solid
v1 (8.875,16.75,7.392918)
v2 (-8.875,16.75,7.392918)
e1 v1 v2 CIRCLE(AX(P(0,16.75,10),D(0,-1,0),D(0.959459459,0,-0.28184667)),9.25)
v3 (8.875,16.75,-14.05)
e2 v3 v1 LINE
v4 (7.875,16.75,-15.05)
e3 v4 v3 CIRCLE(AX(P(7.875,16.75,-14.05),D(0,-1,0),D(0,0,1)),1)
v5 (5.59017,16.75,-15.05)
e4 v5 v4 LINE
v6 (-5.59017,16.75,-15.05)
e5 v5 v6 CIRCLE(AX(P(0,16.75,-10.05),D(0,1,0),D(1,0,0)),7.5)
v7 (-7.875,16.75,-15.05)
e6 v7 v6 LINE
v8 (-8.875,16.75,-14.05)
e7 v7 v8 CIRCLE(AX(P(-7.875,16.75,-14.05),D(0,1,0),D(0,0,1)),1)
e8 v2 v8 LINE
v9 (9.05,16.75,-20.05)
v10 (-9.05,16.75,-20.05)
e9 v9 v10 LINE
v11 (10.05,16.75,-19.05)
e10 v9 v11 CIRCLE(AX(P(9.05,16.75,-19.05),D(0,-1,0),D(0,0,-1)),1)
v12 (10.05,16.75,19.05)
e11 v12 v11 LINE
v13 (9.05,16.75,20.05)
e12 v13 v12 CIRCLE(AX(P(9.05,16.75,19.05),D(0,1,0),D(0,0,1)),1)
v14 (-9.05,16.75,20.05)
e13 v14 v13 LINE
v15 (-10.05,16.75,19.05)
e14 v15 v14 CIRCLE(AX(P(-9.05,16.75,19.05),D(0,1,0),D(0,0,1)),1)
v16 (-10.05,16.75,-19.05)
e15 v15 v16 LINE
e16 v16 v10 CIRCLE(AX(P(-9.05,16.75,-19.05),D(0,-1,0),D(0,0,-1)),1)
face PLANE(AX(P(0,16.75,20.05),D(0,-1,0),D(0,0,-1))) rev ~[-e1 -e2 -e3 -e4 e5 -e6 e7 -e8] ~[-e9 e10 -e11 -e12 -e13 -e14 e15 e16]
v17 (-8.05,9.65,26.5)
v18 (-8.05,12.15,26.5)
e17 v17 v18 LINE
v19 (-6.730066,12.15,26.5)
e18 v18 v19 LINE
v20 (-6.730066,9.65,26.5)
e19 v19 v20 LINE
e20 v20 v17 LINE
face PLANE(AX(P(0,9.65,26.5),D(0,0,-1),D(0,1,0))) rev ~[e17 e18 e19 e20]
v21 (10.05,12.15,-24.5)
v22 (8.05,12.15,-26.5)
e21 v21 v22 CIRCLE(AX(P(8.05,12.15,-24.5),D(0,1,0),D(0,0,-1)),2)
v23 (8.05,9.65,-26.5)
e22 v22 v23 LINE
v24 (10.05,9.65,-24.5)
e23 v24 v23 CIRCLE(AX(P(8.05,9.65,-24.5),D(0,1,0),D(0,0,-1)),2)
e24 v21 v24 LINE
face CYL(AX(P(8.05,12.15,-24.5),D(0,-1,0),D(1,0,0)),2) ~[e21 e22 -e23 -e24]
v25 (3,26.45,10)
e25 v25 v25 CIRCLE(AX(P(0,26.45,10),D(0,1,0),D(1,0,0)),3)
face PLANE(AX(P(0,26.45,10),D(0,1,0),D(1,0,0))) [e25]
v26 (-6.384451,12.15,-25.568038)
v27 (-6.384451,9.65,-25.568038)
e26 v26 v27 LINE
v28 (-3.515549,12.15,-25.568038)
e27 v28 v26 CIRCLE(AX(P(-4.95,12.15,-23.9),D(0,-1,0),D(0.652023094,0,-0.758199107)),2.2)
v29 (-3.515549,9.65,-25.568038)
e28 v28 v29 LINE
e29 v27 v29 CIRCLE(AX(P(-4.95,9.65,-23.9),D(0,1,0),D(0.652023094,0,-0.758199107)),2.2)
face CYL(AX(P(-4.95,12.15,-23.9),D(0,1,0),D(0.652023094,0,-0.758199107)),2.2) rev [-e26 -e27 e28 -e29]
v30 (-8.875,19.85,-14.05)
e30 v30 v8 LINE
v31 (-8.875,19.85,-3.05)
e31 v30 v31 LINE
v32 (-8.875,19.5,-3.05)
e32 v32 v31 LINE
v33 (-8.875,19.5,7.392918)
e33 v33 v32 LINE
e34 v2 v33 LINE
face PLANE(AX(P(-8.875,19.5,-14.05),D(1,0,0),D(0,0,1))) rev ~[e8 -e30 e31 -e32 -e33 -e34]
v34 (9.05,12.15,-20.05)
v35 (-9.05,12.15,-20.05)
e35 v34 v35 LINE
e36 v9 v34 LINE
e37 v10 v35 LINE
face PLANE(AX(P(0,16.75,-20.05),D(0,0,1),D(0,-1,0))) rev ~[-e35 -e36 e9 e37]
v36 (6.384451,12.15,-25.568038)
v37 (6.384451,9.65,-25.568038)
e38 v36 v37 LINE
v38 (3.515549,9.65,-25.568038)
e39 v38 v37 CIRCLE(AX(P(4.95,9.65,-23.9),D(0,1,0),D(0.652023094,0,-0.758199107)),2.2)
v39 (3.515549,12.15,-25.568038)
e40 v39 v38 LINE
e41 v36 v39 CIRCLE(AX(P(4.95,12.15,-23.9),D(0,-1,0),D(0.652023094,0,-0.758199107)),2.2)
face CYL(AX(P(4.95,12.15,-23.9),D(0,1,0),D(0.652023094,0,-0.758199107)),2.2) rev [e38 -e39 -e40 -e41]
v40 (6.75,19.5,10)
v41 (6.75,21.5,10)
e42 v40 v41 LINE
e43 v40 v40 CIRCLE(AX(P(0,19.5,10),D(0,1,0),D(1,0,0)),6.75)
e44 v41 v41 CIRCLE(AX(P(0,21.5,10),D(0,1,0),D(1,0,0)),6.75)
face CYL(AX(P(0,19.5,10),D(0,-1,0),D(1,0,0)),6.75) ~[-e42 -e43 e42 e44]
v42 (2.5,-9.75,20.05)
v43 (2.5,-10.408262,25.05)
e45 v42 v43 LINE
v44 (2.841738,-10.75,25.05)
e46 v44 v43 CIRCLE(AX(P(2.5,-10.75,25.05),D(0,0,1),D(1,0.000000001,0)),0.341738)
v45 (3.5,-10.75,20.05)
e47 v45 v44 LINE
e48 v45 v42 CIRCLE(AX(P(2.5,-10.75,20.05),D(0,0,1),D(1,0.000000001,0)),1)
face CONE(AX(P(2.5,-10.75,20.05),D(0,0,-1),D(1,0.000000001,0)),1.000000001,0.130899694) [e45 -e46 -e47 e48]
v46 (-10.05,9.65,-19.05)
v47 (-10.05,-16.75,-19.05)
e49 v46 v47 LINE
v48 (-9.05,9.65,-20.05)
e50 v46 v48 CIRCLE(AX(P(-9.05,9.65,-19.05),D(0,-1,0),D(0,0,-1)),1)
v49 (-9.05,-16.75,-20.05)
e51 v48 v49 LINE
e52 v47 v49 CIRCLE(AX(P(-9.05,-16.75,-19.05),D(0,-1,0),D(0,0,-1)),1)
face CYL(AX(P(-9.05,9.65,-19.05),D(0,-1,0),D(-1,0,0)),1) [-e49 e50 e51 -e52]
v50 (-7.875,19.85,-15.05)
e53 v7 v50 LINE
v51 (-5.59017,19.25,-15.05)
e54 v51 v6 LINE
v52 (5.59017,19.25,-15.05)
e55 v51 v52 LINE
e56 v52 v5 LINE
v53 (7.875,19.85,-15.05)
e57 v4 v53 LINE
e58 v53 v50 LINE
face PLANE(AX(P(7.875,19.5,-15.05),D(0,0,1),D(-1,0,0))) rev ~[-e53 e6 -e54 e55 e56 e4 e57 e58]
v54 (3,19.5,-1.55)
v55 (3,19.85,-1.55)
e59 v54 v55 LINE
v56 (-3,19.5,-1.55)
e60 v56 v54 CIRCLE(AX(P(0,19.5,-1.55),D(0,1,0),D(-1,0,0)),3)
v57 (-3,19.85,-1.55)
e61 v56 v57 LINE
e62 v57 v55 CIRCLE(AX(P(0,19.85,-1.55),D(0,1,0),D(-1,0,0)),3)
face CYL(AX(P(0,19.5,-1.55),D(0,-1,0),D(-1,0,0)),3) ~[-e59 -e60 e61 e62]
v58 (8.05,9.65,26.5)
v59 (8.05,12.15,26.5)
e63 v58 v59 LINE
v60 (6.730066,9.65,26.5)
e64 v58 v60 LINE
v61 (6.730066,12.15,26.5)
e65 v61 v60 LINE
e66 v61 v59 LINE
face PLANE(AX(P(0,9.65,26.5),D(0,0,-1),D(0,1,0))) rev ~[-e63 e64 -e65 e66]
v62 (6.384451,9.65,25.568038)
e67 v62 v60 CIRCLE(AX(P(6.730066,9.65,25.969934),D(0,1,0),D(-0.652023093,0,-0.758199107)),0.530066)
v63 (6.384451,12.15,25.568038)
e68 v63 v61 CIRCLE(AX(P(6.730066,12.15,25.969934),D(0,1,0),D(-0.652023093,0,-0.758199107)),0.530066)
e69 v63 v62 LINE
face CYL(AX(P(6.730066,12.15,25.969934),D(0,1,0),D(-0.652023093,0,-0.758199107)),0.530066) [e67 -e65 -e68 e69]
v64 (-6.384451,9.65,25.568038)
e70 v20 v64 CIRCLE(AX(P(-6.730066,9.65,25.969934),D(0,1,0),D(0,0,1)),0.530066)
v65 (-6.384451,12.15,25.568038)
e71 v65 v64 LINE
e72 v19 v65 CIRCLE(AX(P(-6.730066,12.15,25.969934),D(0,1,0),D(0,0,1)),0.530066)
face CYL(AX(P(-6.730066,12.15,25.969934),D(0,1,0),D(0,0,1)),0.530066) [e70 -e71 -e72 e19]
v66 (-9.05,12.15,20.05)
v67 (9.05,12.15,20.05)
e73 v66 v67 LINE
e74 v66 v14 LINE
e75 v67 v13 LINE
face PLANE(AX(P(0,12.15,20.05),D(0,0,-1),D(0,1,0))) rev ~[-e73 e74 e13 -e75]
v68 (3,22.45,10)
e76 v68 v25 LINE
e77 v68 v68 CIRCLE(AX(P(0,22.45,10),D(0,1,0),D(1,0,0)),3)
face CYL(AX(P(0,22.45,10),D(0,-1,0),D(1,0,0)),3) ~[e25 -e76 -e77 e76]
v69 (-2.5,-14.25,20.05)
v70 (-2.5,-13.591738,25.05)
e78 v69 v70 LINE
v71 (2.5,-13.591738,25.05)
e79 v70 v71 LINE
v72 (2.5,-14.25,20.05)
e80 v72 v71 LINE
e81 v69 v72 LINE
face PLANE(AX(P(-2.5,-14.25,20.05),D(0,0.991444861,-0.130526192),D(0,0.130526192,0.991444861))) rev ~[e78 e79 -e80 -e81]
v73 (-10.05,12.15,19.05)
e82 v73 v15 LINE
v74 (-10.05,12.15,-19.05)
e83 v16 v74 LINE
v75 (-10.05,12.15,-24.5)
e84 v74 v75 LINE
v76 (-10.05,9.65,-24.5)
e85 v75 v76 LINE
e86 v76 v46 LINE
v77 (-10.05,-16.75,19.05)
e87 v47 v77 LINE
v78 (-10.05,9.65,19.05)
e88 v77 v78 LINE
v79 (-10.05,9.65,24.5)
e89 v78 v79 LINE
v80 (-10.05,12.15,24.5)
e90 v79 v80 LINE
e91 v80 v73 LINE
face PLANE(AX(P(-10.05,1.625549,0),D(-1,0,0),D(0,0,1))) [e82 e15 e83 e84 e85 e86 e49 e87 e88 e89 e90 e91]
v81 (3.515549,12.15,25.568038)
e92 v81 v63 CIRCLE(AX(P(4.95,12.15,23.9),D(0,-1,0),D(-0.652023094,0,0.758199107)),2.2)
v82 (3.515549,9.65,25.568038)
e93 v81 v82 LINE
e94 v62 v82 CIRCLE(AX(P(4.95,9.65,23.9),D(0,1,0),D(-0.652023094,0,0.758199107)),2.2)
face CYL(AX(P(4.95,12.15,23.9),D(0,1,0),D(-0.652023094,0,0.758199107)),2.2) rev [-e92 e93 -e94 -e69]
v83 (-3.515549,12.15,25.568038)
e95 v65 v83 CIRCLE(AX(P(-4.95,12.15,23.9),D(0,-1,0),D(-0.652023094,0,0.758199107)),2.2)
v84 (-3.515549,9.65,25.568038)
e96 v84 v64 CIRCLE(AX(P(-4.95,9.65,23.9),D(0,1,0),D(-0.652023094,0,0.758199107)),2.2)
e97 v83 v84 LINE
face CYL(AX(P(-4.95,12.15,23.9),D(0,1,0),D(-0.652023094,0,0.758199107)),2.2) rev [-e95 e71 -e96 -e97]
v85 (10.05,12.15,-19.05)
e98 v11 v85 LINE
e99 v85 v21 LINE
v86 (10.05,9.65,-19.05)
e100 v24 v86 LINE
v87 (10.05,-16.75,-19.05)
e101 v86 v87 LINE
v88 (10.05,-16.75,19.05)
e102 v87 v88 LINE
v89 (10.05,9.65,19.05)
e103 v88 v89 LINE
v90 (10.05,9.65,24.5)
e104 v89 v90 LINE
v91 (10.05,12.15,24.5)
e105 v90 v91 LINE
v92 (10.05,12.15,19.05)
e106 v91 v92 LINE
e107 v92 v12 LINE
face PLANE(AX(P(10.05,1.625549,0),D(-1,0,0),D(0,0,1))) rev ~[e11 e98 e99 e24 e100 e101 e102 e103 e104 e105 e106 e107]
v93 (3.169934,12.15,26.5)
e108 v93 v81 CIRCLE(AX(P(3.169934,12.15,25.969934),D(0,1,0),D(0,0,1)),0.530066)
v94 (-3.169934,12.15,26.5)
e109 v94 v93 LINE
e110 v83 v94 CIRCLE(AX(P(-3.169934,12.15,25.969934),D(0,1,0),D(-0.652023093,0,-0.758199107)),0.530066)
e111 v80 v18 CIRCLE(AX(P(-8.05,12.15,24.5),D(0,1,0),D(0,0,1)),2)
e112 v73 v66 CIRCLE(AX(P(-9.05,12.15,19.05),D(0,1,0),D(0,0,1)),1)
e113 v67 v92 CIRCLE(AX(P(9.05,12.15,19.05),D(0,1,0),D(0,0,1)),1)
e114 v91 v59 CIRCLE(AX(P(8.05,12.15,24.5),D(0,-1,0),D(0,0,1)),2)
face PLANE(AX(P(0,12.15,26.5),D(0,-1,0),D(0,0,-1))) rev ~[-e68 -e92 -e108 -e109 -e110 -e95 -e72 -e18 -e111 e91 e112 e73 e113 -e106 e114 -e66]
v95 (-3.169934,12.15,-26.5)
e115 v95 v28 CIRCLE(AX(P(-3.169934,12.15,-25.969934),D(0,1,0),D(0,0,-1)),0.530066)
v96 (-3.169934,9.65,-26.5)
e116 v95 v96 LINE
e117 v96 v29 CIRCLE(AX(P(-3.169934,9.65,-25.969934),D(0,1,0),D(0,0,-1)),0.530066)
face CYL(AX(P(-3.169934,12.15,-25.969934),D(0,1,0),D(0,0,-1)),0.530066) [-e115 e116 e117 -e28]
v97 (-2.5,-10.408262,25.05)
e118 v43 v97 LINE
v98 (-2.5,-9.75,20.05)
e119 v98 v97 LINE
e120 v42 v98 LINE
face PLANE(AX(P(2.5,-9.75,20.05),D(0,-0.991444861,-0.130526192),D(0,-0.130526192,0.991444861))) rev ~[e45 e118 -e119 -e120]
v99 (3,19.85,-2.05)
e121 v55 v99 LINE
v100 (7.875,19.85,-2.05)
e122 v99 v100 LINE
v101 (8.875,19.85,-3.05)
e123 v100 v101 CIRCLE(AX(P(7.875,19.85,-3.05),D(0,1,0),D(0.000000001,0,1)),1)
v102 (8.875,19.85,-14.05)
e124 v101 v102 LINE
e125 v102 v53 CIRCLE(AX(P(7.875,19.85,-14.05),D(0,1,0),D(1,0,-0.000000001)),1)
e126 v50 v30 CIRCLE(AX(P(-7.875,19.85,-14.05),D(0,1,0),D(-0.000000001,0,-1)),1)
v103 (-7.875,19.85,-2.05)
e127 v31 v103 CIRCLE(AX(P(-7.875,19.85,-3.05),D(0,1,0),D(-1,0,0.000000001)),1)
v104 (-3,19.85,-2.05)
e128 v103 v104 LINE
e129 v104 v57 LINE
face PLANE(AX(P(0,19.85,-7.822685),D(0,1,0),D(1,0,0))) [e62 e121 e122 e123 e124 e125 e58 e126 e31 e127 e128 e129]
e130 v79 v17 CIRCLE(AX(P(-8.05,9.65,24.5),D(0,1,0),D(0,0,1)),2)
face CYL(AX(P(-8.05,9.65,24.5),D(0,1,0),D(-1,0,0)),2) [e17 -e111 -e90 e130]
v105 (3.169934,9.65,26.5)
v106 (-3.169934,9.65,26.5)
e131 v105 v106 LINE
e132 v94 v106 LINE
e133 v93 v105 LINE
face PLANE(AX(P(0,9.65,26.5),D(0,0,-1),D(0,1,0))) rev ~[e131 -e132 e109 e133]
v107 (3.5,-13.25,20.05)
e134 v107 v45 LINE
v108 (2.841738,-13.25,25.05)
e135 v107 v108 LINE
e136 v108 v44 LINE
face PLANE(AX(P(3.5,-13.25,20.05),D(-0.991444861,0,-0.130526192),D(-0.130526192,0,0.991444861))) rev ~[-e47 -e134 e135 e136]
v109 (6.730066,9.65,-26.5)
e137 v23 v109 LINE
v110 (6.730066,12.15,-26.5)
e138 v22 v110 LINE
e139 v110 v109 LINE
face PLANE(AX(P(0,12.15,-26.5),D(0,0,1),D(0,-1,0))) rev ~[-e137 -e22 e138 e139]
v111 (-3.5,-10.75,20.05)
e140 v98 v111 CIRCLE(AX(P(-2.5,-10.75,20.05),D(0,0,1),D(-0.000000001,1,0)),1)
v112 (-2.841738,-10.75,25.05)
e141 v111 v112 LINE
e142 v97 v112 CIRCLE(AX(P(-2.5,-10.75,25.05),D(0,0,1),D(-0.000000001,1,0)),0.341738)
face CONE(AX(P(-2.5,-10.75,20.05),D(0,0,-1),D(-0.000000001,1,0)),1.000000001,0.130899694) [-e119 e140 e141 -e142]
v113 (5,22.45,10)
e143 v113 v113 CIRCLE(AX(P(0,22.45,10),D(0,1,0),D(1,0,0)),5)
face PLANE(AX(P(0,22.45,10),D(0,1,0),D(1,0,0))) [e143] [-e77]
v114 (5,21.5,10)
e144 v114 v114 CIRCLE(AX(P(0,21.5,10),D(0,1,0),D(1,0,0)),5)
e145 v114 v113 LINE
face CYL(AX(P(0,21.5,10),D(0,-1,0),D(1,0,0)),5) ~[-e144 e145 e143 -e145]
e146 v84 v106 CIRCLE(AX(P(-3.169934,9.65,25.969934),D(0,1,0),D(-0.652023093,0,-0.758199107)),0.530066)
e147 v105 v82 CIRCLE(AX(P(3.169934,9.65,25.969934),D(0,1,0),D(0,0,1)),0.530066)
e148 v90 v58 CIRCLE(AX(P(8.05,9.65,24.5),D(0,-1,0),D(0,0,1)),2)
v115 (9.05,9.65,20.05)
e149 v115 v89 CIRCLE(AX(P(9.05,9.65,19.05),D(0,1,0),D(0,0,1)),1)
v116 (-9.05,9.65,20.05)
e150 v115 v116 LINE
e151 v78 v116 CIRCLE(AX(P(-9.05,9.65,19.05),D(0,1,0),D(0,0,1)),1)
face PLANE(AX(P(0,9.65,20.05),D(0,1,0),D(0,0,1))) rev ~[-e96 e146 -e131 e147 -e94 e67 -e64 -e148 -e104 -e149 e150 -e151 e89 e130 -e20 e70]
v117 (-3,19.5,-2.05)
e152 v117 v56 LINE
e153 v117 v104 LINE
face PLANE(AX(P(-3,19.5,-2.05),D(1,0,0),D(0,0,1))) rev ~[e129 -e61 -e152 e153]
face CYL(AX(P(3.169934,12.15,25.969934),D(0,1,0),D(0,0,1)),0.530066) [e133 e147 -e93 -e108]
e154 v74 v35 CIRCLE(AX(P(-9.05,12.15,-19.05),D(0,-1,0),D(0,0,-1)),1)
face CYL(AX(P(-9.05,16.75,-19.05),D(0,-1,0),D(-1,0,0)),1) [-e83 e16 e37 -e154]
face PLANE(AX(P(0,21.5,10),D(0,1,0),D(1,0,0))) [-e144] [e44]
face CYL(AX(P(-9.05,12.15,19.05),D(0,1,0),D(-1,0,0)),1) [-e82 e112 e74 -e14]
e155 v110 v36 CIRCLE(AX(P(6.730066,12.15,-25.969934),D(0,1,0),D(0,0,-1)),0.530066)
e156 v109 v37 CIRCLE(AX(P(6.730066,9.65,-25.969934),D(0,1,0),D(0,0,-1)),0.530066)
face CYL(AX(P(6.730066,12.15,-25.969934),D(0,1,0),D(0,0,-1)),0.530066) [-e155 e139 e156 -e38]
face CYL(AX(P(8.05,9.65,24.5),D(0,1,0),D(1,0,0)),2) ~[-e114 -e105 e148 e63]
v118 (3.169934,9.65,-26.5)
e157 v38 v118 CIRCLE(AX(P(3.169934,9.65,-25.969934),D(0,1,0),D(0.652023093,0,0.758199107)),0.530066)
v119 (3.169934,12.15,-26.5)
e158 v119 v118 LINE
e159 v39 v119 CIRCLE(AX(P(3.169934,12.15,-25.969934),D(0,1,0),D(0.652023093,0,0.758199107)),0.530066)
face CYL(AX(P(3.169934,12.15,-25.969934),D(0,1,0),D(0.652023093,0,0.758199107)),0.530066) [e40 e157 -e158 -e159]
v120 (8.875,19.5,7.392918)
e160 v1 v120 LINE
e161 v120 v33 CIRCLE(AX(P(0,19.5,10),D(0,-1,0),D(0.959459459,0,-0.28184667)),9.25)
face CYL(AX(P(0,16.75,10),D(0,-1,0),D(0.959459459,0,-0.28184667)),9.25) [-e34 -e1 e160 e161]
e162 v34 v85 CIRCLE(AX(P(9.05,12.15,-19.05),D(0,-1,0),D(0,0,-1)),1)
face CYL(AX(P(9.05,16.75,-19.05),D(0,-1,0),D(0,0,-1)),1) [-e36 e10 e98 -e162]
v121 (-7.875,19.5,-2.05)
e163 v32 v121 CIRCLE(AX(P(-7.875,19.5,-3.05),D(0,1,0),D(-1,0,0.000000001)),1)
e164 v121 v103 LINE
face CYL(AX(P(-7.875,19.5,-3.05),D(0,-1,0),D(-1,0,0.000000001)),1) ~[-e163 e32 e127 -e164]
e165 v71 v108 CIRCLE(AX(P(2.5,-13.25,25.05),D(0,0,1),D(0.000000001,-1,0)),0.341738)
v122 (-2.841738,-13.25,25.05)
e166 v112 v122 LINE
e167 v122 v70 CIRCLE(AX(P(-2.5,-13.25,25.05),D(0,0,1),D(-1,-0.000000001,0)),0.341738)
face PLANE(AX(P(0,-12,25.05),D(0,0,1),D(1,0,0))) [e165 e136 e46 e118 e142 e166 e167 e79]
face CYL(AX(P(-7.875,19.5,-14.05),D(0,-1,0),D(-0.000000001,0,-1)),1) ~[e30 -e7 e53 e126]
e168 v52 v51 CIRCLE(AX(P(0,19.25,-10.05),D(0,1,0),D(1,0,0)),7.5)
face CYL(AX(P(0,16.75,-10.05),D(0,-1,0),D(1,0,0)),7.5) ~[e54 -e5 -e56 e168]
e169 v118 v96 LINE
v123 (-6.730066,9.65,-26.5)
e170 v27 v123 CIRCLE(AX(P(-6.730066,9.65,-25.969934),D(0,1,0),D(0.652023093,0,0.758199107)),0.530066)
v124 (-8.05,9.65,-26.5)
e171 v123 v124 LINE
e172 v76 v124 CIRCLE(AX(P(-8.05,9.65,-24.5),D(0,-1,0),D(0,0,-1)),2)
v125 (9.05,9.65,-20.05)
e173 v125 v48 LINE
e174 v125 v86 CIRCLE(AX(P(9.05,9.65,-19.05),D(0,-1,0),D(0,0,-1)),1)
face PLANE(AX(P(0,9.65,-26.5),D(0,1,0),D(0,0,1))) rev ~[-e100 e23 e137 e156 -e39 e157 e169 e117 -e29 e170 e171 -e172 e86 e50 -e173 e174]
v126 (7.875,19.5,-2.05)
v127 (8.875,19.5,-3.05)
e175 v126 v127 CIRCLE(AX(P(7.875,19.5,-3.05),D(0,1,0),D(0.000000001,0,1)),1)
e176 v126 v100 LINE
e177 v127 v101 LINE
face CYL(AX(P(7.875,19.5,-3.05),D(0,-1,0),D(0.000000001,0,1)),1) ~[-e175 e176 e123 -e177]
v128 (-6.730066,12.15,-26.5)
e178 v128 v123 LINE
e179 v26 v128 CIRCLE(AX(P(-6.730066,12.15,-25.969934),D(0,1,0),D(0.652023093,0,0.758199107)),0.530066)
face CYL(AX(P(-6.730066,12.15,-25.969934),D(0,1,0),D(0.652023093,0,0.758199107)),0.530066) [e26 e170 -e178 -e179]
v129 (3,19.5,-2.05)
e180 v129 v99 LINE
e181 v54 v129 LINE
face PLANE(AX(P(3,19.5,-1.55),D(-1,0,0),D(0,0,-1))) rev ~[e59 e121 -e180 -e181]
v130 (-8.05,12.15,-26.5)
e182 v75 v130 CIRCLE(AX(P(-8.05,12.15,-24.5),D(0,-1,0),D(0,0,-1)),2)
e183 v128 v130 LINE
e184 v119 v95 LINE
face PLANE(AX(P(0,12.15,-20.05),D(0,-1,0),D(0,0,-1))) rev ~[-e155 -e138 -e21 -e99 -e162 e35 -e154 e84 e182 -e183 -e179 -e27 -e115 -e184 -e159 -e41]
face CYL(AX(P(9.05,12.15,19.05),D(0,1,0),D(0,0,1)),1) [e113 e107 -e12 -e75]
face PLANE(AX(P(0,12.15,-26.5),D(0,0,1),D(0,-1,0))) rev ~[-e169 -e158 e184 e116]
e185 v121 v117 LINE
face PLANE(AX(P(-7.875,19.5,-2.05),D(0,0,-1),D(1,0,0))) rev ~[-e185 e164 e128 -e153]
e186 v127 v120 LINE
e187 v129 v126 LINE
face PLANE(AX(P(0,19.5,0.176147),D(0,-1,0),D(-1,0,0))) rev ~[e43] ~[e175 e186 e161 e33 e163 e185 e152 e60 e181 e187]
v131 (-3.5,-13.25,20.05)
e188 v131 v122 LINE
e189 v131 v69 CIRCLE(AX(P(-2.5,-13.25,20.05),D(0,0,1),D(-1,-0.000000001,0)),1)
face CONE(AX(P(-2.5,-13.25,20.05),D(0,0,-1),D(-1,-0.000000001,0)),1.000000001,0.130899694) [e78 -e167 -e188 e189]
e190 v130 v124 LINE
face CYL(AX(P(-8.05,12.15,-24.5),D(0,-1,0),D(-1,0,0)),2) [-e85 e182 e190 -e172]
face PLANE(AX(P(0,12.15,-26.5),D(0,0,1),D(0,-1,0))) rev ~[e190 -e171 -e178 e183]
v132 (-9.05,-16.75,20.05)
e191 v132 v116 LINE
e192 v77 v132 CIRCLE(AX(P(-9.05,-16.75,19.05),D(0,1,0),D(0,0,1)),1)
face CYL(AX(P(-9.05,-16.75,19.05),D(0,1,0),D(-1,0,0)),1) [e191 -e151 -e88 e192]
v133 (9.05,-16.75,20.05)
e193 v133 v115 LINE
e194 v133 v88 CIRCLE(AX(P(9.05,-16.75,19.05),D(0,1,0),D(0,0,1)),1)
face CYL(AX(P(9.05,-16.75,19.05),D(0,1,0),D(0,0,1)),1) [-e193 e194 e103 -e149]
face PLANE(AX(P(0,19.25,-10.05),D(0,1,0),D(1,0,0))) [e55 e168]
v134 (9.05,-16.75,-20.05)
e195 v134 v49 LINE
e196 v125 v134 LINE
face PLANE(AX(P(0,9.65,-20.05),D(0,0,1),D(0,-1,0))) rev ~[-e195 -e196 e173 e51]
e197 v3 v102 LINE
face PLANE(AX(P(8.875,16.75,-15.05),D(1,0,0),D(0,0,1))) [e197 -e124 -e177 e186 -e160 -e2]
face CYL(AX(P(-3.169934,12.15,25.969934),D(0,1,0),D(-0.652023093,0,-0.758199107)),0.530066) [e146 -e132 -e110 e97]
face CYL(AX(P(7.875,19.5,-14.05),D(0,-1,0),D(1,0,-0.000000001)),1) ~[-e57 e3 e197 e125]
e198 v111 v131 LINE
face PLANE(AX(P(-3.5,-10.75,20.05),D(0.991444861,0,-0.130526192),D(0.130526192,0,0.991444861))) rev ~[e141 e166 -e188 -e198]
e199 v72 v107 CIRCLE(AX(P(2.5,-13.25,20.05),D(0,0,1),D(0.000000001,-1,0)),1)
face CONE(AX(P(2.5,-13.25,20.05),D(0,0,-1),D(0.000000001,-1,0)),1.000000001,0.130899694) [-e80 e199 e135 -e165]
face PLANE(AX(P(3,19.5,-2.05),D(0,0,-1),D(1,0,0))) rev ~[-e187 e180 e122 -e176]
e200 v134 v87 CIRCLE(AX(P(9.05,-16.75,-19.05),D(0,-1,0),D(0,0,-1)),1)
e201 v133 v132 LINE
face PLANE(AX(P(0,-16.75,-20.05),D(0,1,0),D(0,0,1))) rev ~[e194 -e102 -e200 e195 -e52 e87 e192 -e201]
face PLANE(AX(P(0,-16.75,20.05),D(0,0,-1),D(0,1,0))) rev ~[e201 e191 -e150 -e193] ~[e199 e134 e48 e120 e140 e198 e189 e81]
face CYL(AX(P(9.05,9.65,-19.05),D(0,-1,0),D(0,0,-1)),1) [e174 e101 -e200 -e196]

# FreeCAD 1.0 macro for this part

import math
import FreeCAD as App
import Part
import Sketcher
from FreeCAD import Vector


def edges_at(feature, points):
    """Names of the edges that pass closest to the given points."""
    edges = feature.Shape.Edges
    near = lambda p: min(range(len(edges)), key=lambda i: edges[i].distToShape(Part.Vertex(*p))[0])
    return sorted({f"Edge{near(p) + 1}" for p in points})

doc = App.newDocument("Part")
body = doc.addObject("PartDesign::Body", "Body")

sketch1 = body.newObject("Sketcher::SketchObject", "Sketch")
sketch1.AttachmentSupport = (doc.getObject("YZ_Plane"), [""])
sketch1.MapMode = "FlatFace"
sketch1.addGeometry(Part.LineSegment(Vector(16.8, -20.1, 0), Vector(16.8, 20.1, 0)), False)
sketch1.addGeometry(Part.LineSegment(Vector(16.8, 20.1, 0), Vector(12.2, 20.1, 0)), False)
sketch1.addGeometry(Part.LineSegment(Vector(12.2, 20.1, 0), Vector(12.2, 26.5, 0)), False)
sketch1.addGeometry(Part.LineSegment(Vector(12.2, 26.5, 0), Vector(9.7, 26.5, 0)), False)
sketch1.addGeometry(Part.LineSegment(Vector(9.7, 26.5, 0), Vector(9.7, 20.1, 0)), False)
sketch1.addGeometry(Part.LineSegment(Vector(9.7, 20.1, 0), Vector(-16.8, 20.1, 0)), False)
sketch1.addGeometry(Part.LineSegment(Vector(-16.8, 20.1, 0), Vector(-16.8, -20.1, 0)), False)
sketch1.addGeometry(Part.LineSegment(Vector(-16.8, -20.1, 0), Vector(9.7, -20.1, 0)), False)
sketch1.addGeometry(Part.LineSegment(Vector(9.7, -20.1, 0), Vector(9.7, -26.5, 0)), False)
sketch1.addGeometry(Part.LineSegment(Vector(9.7, -26.5, 0), Vector(12.2, -26.5, 0)), False)
sketch1.addGeometry(Part.LineSegment(Vector(12.2, -26.5, 0), Vector(12.2, -20.1, 0)), False)
sketch1.addGeometry(Part.LineSegment(Vector(12.2, -20.1, 0), Vector(16.8, -20.1, 0)), False)
sketch1.addConstraint(Sketcher.Constraint("Coincident", 0, 2, 1, 1))
sketch1.addConstraint(Sketcher.Constraint("Coincident", 1, 2, 2, 1))
sketch1.addConstraint(Sketcher.Constraint("Coincident", 2, 2, 3, 1))
sketch1.addConstraint(Sketcher.Constraint("Coincident", 3, 2, 4, 1))
sketch1.addConstraint(Sketcher.Constraint("Coincident", 4, 2, 5, 1))
sketch1.addConstraint(Sketcher.Constraint("Coincident", 5, 2, 6, 1))
sketch1.addConstraint(Sketcher.Constraint("Coincident", 6, 2, 7, 1))
sketch1.addConstraint(Sketcher.Constraint("Coincident", 7, 2, 8, 1))
sketch1.addConstraint(Sketcher.Constraint("Coincident", 8, 2, 9, 1))
sketch1.addConstraint(Sketcher.Constraint("Coincident", 9, 2, 10, 1))
sketch1.addConstraint(Sketcher.Constraint("Coincident", 10, 2, 11, 1))
sketch1.addConstraint(Sketcher.Constraint("Coincident", 11, 2, 0, 1))
sketch1.addConstraint(Sketcher.Constraint("Vertical", 0))
sketch1.addConstraint(Sketcher.Constraint("Horizontal", 1))
sketch1.addConstraint(Sketcher.Constraint("Vertical", 2))
sketch1.addConstraint(Sketcher.Constraint("Horizontal", 3))
sketch1.addConstraint(Sketcher.Constraint("Vertical", 4))
sketch1.addConstraint(Sketcher.Constraint("Horizontal", 5))
sketch1.addConstraint(Sketcher.Constraint("Vertical", 6))
sketch1.addConstraint(Sketcher.Constraint("Horizontal", 7))
sketch1.addConstraint(Sketcher.Constraint("Vertical", 8))
sketch1.addConstraint(Sketcher.Constraint("Horizontal", 9))
sketch1.addConstraint(Sketcher.Constraint("Vertical", 10))
sketch1.addConstraint(Sketcher.Constraint("Horizontal", 11))
sketch1.addConstraint(Sketcher.Constraint("Symmetric", 0, 2, 6, 2, -1, 1))
sketch1.addConstraint(Sketcher.Constraint("Symmetric", 4, 2, 7, 2, -1))
sketch1.addConstraint(Sketcher.Constraint("Symmetric", 2, 2, 9, 2, -1))
sketch1.addConstraint(Sketcher.Constraint("Horizontal", 7, 2, 10, 2))
sketch1.addConstraint(Sketcher.Constraint("DistanceX", 1, 2, 1, 1, 4.6))
sketch1.addConstraint(Sketcher.Constraint("DistanceX", 3, 2, 3, 1, 2.5))
sketch1.addConstraint(Sketcher.Constraint("DistanceX", 5, 2, 5, 1, 26.4))
sketch1.addConstraint(Sketcher.Constraint("DistanceY", 0, 1, 0, 2, 40.1))
sketch1.addConstraint(Sketcher.Constraint("DistanceY", 2, 1, 2, 2, 6.45))
pad1 = body.newObject("PartDesign::Pad", "Pad")
pad1.Profile = sketch1
pad1.Length = 20.1
pad1.Midplane = True

sketch2 = body.newObject("Sketcher::SketchObject", "Sketch001")
sketch2.AttachmentSupport = (doc.getObject("XZ_Plane"), [""])
sketch2.MapMode = "FlatFace"
sketch2.AttachmentOffset = App.Placement(Vector(0, 0, -16.75), App.Rotation())
sketch2.addGeometry(Part.LineSegment(Vector(9, -15, 0), Vector(-9, -15, 0)), False)
sketch2.addGeometry(Part.LineSegment(Vector(-9, -15, 0), Vector(-9, 7, 0)), False)
sketch2.addGeometry(Part.ArcOfCircle(Part.Circle(Vector(0, 10, 0), Vector(0, 0, 1), 9), math.radians(-16), math.radians(196)), False)
sketch2.addGeometry(Part.LineSegment(Vector(9, 7, 0), Vector(9, -15, 0)), False)
sketch2.addConstraint(Sketcher.Constraint("Coincident", 0, 2, 1, 1))
sketch2.addConstraint(Sketcher.Constraint("Coincident", 1, 2, 2, 2))
sketch2.addConstraint(Sketcher.Constraint("Coincident", 2, 1, 3, 1))
sketch2.addConstraint(Sketcher.Constraint("Coincident", 3, 2, 0, 1))
sketch2.addConstraint(Sketcher.Constraint("Horizontal", 0))
sketch2.addConstraint(Sketcher.Constraint("Vertical", 1))
sketch2.addConstraint(Sketcher.Constraint("Vertical", 3))
sketch2.addConstraint(Sketcher.Constraint("Symmetric", 1, 2, 2, 1, -2))
sketch2.addConstraint(Sketcher.Constraint("Radius", 2, 9.25))
sketch2.addConstraint(Sketcher.Constraint("DistanceY", -1, 1, 2, 3, 10.0))
sketch2.addConstraint(Sketcher.Constraint("DistanceX", 0, 2, 0, 1, 17.75))
sketch2.addConstraint(Sketcher.Constraint("DistanceY", 0, 2, -1, 1, 15.05))
pad2 = body.newObject("PartDesign::Pad", "Pad001")
pad2.Profile = sketch2
pad2.Length = 2.75
pad2.Reversed = True

sketch3 = body.newObject("Sketcher::SketchObject", "Sketch002")
sketch3.AttachmentSupport = (doc.getObject("XZ_Plane"), [""])
sketch3.MapMode = "FlatFace"
sketch3.AttachmentOffset = App.Placement(Vector(0, 0, -16.75), App.Rotation())
sketch3.addGeometry(Part.Circle(Vector(0, -10, 0), Vector(0, 0, 1), 8), False)
sketch3.addConstraint(Sketcher.Constraint("PointOnObject", 0, 3, -2))
sketch3.addConstraint(Sketcher.Constraint("Diameter", 0, 15.0))
sketch3.addConstraint(Sketcher.Constraint("DistanceY", 0, 3, -1, 1, 10.05))
pad3 = body.newObject("PartDesign::Pad", "Pad002")
pad3.Profile = sketch3
pad3.Length = 2.5
pad3.Reversed = True

sketch4 = body.newObject("Sketcher::SketchObject", "Sketch003")
sketch4.AttachmentSupport = (doc.getObject("XZ_Plane"), [""])
sketch4.MapMode = "FlatFace"
sketch4.AttachmentOffset = App.Placement(Vector(0, 0, -19.5), App.Rotation())
sketch4.addGeometry(Part.Circle(Vector(0, 10, 0), Vector(0, 0, 1), 7), False)
sketch4.addConstraint(Sketcher.Constraint("PointOnObject", 0, 3, -2))
sketch4.addConstraint(Sketcher.Constraint("Diameter", 0, 13.5))
sketch4.addConstraint(Sketcher.Constraint("DistanceY", -1, 1, 0, 3, 10.0))
pad4 = body.newObject("PartDesign::Pad", "Pad003")
pad4.Profile = sketch4
pad4.Length = 2
pad4.Reversed = True

sketch5 = body.newObject("Sketcher::SketchObject", "Sketch004")
sketch5.AttachmentSupport = (doc.getObject("XZ_Plane"), [""])
sketch5.MapMode = "FlatFace"
sketch5.AttachmentOffset = App.Placement(Vector(0, 0, -21.5), App.Rotation())
sketch5.addGeometry(Part.Circle(Vector(0, 10, 0), Vector(0, 0, 1), 5), False)
sketch5.addConstraint(Sketcher.Constraint("PointOnObject", 0, 3, -2))
sketch5.addConstraint(Sketcher.Constraint("Diameter", 0, 10.0))
sketch5.addConstraint(Sketcher.Constraint("DistanceY", -1, 1, 0, 3, 10.0))
pad5 = body.newObject("PartDesign::Pad", "Pad004")
pad5.Profile = sketch5
pad5.Length = 0.95
pad5.Reversed = True

sketch6 = body.newObject("Sketcher::SketchObject", "Sketch005")
sketch6.AttachmentSupport = (doc.getObject("XZ_Plane"), [""])
sketch6.MapMode = "FlatFace"
sketch6.AttachmentOffset = App.Placement(Vector(0, 0, -22.45), App.Rotation())
sketch6.addGeometry(Part.Circle(Vector(0, 10, 0), Vector(0, 0, 1), 3), False)
sketch6.addConstraint(Sketcher.Constraint("PointOnObject", 0, 3, -2))
sketch6.addConstraint(Sketcher.Constraint("Diameter", 0, 6.0))
sketch6.addConstraint(Sketcher.Constraint("DistanceY", -1, 1, 0, 3, 10.0))
pad6 = body.newObject("PartDesign::Pad", "Pad005")
pad6.Profile = sketch6
pad6.Length = 4
pad6.Reversed = True
doc.recompute()

fillet = body.newObject("PartDesign::Fillet", "Fillet")
fillet.Base = (pad6, edges_at(pad6, [(-8.875, 18.125, -15.05), (8.875, 18.125, -15.05)]))
fillet.Radius = 1

sketch7 = body.newObject("Sketcher::SketchObject", "Sketch006")
sketch7.AttachmentSupport = (doc.getObject("XZ_Plane"), [""])
sketch7.MapMode = "FlatFace"
sketch7.AttachmentOffset = App.Placement(Vector(0, 0, -19.5), App.Rotation())
sketch7.addGeometry(Part.LineSegment(Vector(-7.88, -2.05, 0), Vector(-3, -2.05, 0)), False)
sketch7.addGeometry(Part.LineSegment(Vector(-3, -2.05, 0), Vector(-3, -1.55, 0)), False)
sketch7.addGeometry(Part.ArcOfCircle(Part.Circle(Vector(0, -1.55, 0), Vector(0, 0, 1), 3), math.radians(0), math.radians(180)), False)
sketch7.addGeometry(Part.LineSegment(Vector(3, -1.55, 0), Vector(3, -2.05, 0)), False)
sketch7.addGeometry(Part.LineSegment(Vector(3, -2.05, 0), Vector(7.88, -2.05, 0)), False)
sketch7.addGeometry(Part.ArcOfCircle(Part.Circle(Vector(7.87, -3.05, 0), Vector(0, 0, 1), 1), math.radians(0), math.radians(90)), False)
sketch7.addGeometry(Part.LineSegment(Vector(8.88, -3.05, 0), Vector(8.88, -14.05, 0)), False)
sketch7.addGeometry(Part.ArcOfCircle(Part.Circle(Vector(7.87, -14.05, 0), Vector(0, 0, 1), 1), math.radians(-90), math.radians(0)), False)
sketch7.addGeometry(Part.LineSegment(Vector(7.88, -15.05, 0), Vector(-7.88, -15.05, 0)), False)
sketch7.addGeometry(Part.ArcOfCircle(Part.Circle(Vector(-7.87, -14.05, 0), Vector(0, 0, 1), 1), math.radians(-180), math.radians(-90)), False)
sketch7.addGeometry(Part.LineSegment(Vector(-8.88, -14.05, 0), Vector(-8.88, -3.05, 0)), False)
sketch7.addGeometry(Part.ArcOfCircle(Part.Circle(Vector(-7.87, -3.05, 0), Vector(0, 0, 1), 1), math.radians(90), math.radians(180)), False)
sketch7.addConstraint(Sketcher.Constraint("Coincident", 0, 2, 1, 1))
sketch7.addConstraint(Sketcher.Constraint("Tangent", 1, 2, 2, 2))
sketch7.addConstraint(Sketcher.Constraint("Tangent", 2, 1, 3, 1))
sketch7.addConstraint(Sketcher.Constraint("Coincident", 3, 2, 4, 1))
sketch7.addConstraint(Sketcher.Constraint("Tangent", 4, 2, 5, 2))
sketch7.addConstraint(Sketcher.Constraint("Tangent", 5, 1, 6, 1))
sketch7.addConstraint(Sketcher.Constraint("Tangent", 6, 2, 7, 2))
sketch7.addConstraint(Sketcher.Constraint("Tangent", 7, 1, 8, 1))
sketch7.addConstraint(Sketcher.Constraint("Tangent", 8, 2, 9, 2))
sketch7.addConstraint(Sketcher.Constraint("Tangent", 9, 1, 10, 1))
sketch7.addConstraint(Sketcher.Constraint("Tangent", 10, 2, 11, 2))
sketch7.addConstraint(Sketcher.Constraint("Tangent", 11, 1, 0, 1))
sketch7.addConstraint(Sketcher.Constraint("Horizontal", 0))
sketch7.addConstraint(Sketcher.Constraint("Vertical", 1))
sketch7.addConstraint(Sketcher.Constraint("Vertical", 3))
sketch7.addConstraint(Sketcher.Constraint("Horizontal", 4))
sketch7.addConstraint(Sketcher.Constraint("Vertical", 6))
sketch7.addConstraint(Sketcher.Constraint("Horizontal", 8))
sketch7.addConstraint(Sketcher.Constraint("Vertical", 10))
sketch7.addConstraint(Sketcher.Constraint("Equal", 5, 7))
sketch7.addConstraint(Sketcher.Constraint("Equal", 7, 9))
sketch7.addConstraint(Sketcher.Constraint("Equal", 9, 11))
sketch7.addConstraint(Sketcher.Constraint("Symmetric", 5, 3, 11, 3, -2))
sketch7.addConstraint(Sketcher.Constraint("PointOnObject", 2, 3, -2))
sketch7.addConstraint(Sketcher.Constraint("Radius", 2, 3.0))
sketch7.addConstraint(Sketcher.Constraint("Radius", 5, 1.0))
sketch7.addConstraint(Sketcher.Constraint("DistanceY", 6, 2, 6, 1, 11.0))
sketch7.addConstraint(Sketcher.Constraint("DistanceY", 1, 1, 1, 2, 0.5))
sketch7.addConstraint(Sketcher.Constraint("DistanceX", 8, 2, 8, 1, 15.75))
sketch7.addConstraint(Sketcher.Constraint("DistanceY", 2, 3, -1, 1, 1.55))
pad7 = body.newObject("PartDesign::Pad", "Pad006")
pad7.Profile = sketch7
pad7.Length = 0.35
pad7.Reversed = True

sketch8 = body.newObject("Sketcher::SketchObject", "Sketch007")
sketch8.AttachmentSupport = (doc.getObject("XZ_Plane"), [""])
sketch8.MapMode = "FlatFace"
sketch8.AttachmentOffset = App.Placement(Vector(0, 0, -12.15), App.Rotation())
sketch8.addGeometry(Part.LineSegment(Vector(3.2, 26.5, 0), Vector(6.7, 26.5, 0)), False)
sketch8.addGeometry(Part.ArcOfCircle(Part.Circle(Vector(6.7, 26, 0), Vector(0, 0, 1), 0.5), math.radians(90), math.radians(229)), False)
sketch8.addGeometry(Part.ArcOfCircle(Part.Circle(Vector(5, 23.9, 0), Vector(0, 0, 1), 2.2), math.radians(131), math.radians(409)), False)
sketch8.addGeometry(Part.ArcOfCircle(Part.Circle(Vector(3.2, 26, 0), Vector(0, 0, 1), 0.5), math.radians(-49), math.radians(90)), False)
sketch8.addGeometry(Part.LineSegment(Vector(-6.7, 26.5, 0), Vector(-3.2, 26.5, 0)), False)
sketch8.addGeometry(Part.ArcOfCircle(Part.Circle(Vector(-3.2, 26, 0), Vector(0, 0, 1), 0.5), math.radians(90), math.radians(229)), False)
sketch8.addGeometry(Part.ArcOfCircle(Part.Circle(Vector(-5, 23.9, 0), Vector(0, 0, 1), 2.2), math.radians(131), math.radians(409)), False)
sketch8.addGeometry(Part.ArcOfCircle(Part.Circle(Vector(-6.7, 26, 0), Vector(0, 0, 1), 0.5), math.radians(-49), math.radians(90)), False)
sketch8.addGeometry(Part.LineSegment(Vector(-3.2, -26.5, 0), Vector(-6.7, -26.5, 0)), False)
sketch8.addGeometry(Part.ArcOfCircle(Part.Circle(Vector(-6.7, -26, 0), Vector(0, 0, 1), 0.5), math.radians(-90), math.radians(49)), False)
sketch8.addGeometry(Part.ArcOfCircle(Part.Circle(Vector(-5, -23.9, 0), Vector(0, 0, 1), 2.2), math.radians(-49), math.radians(229)), False)
sketch8.addGeometry(Part.ArcOfCircle(Part.Circle(Vector(-3.2, -26, 0), Vector(0, 0, 1), 0.5), math.radians(131), math.radians(270)), False)
sketch8.addGeometry(Part.LineSegment(Vector(6.7, -26.5, 0), Vector(3.2, -26.5, 0)), False)
sketch8.addGeometry(Part.ArcOfCircle(Part.Circle(Vector(3.2, -26, 0), Vector(0, 0, 1), 0.5), math.radians(-90), math.radians(49)), False)
sketch8.addGeometry(Part.ArcOfCircle(Part.Circle(Vector(5, -23.9, 0), Vector(0, 0, 1), 2.2), math.radians(-49), math.radians(229)), False)
sketch8.addGeometry(Part.ArcOfCircle(Part.Circle(Vector(6.7, -26, 0), Vector(0, 0, 1), 0.5), math.radians(131), math.radians(270)), False)
sketch8.addConstraint(Sketcher.Constraint("Tangent", 0, 2, 1, 1))
sketch8.addConstraint(Sketcher.Constraint("Tangent", 1, 2, 2, 2))
sketch8.addConstraint(Sketcher.Constraint("Tangent", 2, 1, 3, 1))
sketch8.addConstraint(Sketcher.Constraint("Tangent", 3, 2, 0, 1))
sketch8.addConstraint(Sketcher.Constraint("Tangent", 4, 2, 5, 1))
sketch8.addConstraint(Sketcher.Constraint("Tangent", 5, 2, 6, 2))
sketch8.addConstraint(Sketcher.Constraint("Tangent", 6, 1, 7, 1))
sketch8.addConstraint(Sketcher.Constraint("Tangent", 7, 2, 4, 1))
sketch8.addConstraint(Sketcher.Constraint("Tangent", 8, 2, 9, 1))
sketch8.addConstraint(Sketcher.Constraint("Tangent", 9, 2, 10, 2))
sketch8.addConstraint(Sketcher.Constraint("Tangent", 10, 1, 11, 1))
sketch8.addConstraint(Sketcher.Constraint("Tangent", 11, 2, 8, 1))
sketch8.addConstraint(Sketcher.Constraint("Tangent", 12, 2, 13, 1))
sketch8.addConstraint(Sketcher.Constraint("Tangent", 13, 2, 14, 2))
sketch8.addConstraint(Sketcher.Constraint("Tangent", 14, 1, 15, 1))
sketch8.addConstraint(Sketcher.Constraint("Tangent", 15, 2, 12, 1))
sketch8.addConstraint(Sketcher.Constraint("Horizontal", 0))
sketch8.addConstraint(Sketcher.Constraint("Horizontal", 4))
sketch8.addConstraint(Sketcher.Constraint("Horizontal", 8))
sketch8.addConstraint(Sketcher.Constraint("Horizontal", 12))
sketch8.addConstraint(Sketcher.Constraint("Equal", 1, 3))
sketch8.addConstraint(Sketcher.Constraint("Equal", 3, 5))
sketch8.addConstraint(Sketcher.Constraint("Equal", 2, 6))
sketch8.addConstraint(Sketcher.Constraint("Equal", 5, 7))
sketch8.addConstraint(Sketcher.Constraint("Equal", 7, 9))
sketch8.addConstraint(Sketcher.Constraint("Equal", 6, 10))
sketch8.addConstraint(Sketcher.Constraint("Equal", 9, 11))
sketch8.addConstraint(Sketcher.Constraint("Equal", 11, 13))
sketch8.addConstraint(Sketcher.Constraint("Equal", 10, 14))
sketch8.addConstraint(Sketcher.Constraint("Equal", 13, 15))
sketch8.addConstraint(Sketcher.Constraint("Symmetric", 1, 3, 9, 3, -1, 1))
sketch8.addConstraint(Sketcher.Constraint("Symmetric", 5, 3, 13, 3, -1, 1))
sketch8.addConstraint(Sketcher.Constraint("Symmetric", 3, 3, 5, 3, -2))
sketch8.addConstraint(Sketcher.Constraint("Symmetric", 10, 3, 14, 3, -2))
sketch8.addConstraint(Sketcher.Constraint("Horizontal", 2, 3, 6, 3))
sketch8.addConstraint(Sketcher.Constraint("Radius", 2, 2.2))
sketch8.addConstraint(Sketcher.Constraint("DistanceY", -1, 1, 2, 3, 23.9))
sketch8.addConstraint(Sketcher.Constraint("DistanceY", -1, 1, 0, 2, 26.5))
sketch8.addConstraint(Sketcher.Constraint("DistanceX", 5, 3, 1, 3, 9.9))
sketch8.addConstraint(Sketcher.Constraint("Radius", 1, 0.530066))
pocket1 = body.newObject("PartDesign::Pocket", "Pocket")
pocket1.Profile = sketch8
pocket1.Type = "ThroughAll"
pocket1.Reversed = True
doc.recompute()

fillet2 = body.newObject("PartDesign::Fillet", "Fillet001")
fillet2.Base = (pocket1, edges_at(pocket1, [
    (10.05, 10.9, 26.5),
    (-10.05, 10.9, -26.5),
    (-10.05, 10.9, 26.5),
    (10.05, 10.9, -26.5),
]))
fillet2.Radius = 2
doc.recompute()

fillet3 = body.newObject("PartDesign::Fillet", "Fillet002")
fillet3.Base = (fillet2, edges_at(fillet2, [
    (-10.05, 14.45, -20.05),
    (-10.05, -3.55, -20.05),
    (-10.05, -3.55, 20.05),
    (-10.05, 14.45, 20.05),
    (10.05, -3.55, 20.05),
    (10.05, -3.55, -20.05),
    (10.05, 14.45, -20.05),
    (10.05, 14.45, 20.05),
]))
fillet3.Radius = 1

sketch9 = body.newObject("Sketcher::SketchObject", "Sketch008")
sketch9.AttachmentSupport = (doc.getObject("XY_Plane"), [""])
sketch9.MapMode = "FlatFace"
sketch9.AttachmentOffset = App.Placement(Vector(0, 0, 20.05), App.Rotation())
sketch9.addGeometry(Part.LineSegment(Vector(-2.5, -14.2, 0), Vector(2.5, -14.2, 0)), False)
sketch9.addGeometry(Part.ArcOfCircle(Part.Circle(Vector(2.5, -13.2, 0), Vector(0, 0, 1), 1), math.radians(-90), math.radians(0)), False)
sketch9.addGeometry(Part.LineSegment(Vector(3.5, -13.2, 0), Vector(3.5, -10.8, 0)), False)
sketch9.addGeometry(Part.ArcOfCircle(Part.Circle(Vector(2.5, -10.8, 0), Vector(0, 0, 1), 1), math.radians(0), math.radians(90)), False)
sketch9.addGeometry(Part.LineSegment(Vector(2.5, -9.8, 0), Vector(-2.5, -9.8, 0)), False)
sketch9.addGeometry(Part.ArcOfCircle(Part.Circle(Vector(-2.5, -10.8, 0), Vector(0, 0, 1), 1), math.radians(90), math.radians(180)), False)
sketch9.addGeometry(Part.LineSegment(Vector(-3.5, -10.8, 0), Vector(-3.5, -13.2, 0)), False)
sketch9.addGeometry(Part.ArcOfCircle(Part.Circle(Vector(-2.5, -13.2, 0), Vector(0, 0, 1), 1), math.radians(-180), math.radians(-90)), False)
sketch9.addConstraint(Sketcher.Constraint("Tangent", 0, 2, 1, 1))
sketch9.addConstraint(Sketcher.Constraint("Tangent", 1, 2, 2, 1))
sketch9.addConstraint(Sketcher.Constraint("Tangent", 2, 2, 3, 1))
sketch9.addConstraint(Sketcher.Constraint("Tangent", 3, 2, 4, 1))
sketch9.addConstraint(Sketcher.Constraint("Tangent", 4, 2, 5, 1))
sketch9.addConstraint(Sketcher.Constraint("Tangent", 5, 2, 6, 1))
sketch9.addConstraint(Sketcher.Constraint("Tangent", 6, 2, 7, 1))
sketch9.addConstraint(Sketcher.Constraint("Tangent", 7, 2, 0, 1))
sketch9.addConstraint(Sketcher.Constraint("Horizontal", 0))
sketch9.addConstraint(Sketcher.Constraint("Vertical", 2))
sketch9.addConstraint(Sketcher.Constraint("Horizontal", 4))
sketch9.addConstraint(Sketcher.Constraint("Vertical", 6))
sketch9.addConstraint(Sketcher.Constraint("Equal", 1, 3))
sketch9.addConstraint(Sketcher.Constraint("Equal", 3, 5))
sketch9.addConstraint(Sketcher.Constraint("Equal", 5, 7))
sketch9.addConstraint(Sketcher.Constraint("Radius", 1, 1.0))
sketch9.addConstraint(Sketcher.Constraint("DistanceX", 0, 1, 0, 2, 5.0))
sketch9.addConstraint(Sketcher.Constraint("DistanceY", 2, 1, 2, 2, 2.5))
sketch9.addConstraint(Sketcher.Constraint("DistanceX", -1, 1, 1, 3, 2.5))
sketch9.addConstraint(Sketcher.Constraint("DistanceY", 1, 3, -1, 1, 13.25))
pad8 = body.newObject("PartDesign::Pad", "Pad007")
pad8.Profile = sketch9
pad8.Length = 5
pad8.TaperAngle = -7.5

doc.recompute()
